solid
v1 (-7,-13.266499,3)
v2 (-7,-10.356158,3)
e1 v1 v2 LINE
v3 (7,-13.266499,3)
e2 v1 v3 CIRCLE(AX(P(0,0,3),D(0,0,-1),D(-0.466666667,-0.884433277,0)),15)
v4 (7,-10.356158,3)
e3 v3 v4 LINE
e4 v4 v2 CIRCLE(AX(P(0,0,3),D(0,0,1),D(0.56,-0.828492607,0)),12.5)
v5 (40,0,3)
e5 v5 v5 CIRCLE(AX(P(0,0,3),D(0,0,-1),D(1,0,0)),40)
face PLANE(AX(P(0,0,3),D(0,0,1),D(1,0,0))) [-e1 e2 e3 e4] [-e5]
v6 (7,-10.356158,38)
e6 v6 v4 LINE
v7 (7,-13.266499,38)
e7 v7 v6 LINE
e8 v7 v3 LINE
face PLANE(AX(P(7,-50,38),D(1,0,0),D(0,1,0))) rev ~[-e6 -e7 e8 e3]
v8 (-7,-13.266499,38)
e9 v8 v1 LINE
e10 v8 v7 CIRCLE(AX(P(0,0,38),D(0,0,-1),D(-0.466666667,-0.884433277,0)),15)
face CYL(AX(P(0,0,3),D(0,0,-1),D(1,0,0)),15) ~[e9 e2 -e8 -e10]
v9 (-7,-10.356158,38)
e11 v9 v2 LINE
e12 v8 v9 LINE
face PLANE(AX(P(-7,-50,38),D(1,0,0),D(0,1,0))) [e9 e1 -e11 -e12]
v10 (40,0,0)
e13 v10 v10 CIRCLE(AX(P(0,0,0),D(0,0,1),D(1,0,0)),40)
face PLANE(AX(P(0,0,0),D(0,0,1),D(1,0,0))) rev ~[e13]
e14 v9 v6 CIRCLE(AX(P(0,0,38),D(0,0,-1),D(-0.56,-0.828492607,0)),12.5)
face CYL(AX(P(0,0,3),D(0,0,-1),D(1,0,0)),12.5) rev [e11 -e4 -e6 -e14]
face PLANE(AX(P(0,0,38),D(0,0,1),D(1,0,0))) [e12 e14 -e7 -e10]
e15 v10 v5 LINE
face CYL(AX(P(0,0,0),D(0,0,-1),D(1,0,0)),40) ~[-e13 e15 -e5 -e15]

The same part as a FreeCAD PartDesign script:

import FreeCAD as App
import Part
import Sketcher
from FreeCAD import Vector


def add_polygon(sketch, points):
    """Adds a closed chain of lines whose ends are joined by coincident constraints."""
    first, n = sketch.GeometryCount, len(points)
    for a, b in zip(points, points[1:] + points[:1]):
        sketch.addGeometry(Part.LineSegment(App.Vector(*a, 0), App.Vector(*b, 0)), False)
    for i in range(n):
        sketch.addConstraint(Sketcher.Constraint("Coincident", first + i, 2, first + (i + 1) % n, 1))

doc = App.newDocument("Part")
body = doc.addObject("PartDesign::Body", "Body")

sketch1 = body.newObject("Sketcher::SketchObject", "Sketch")
sketch1.AttachmentSupport = (doc.getObject("XY_Plane"), [""])
sketch1.MapMode = "FlatFace"
sketch1.addGeometry(Part.Circle(Vector(0, 0, 0), Vector(0, 0, 1), 40), False)
sketch1.addConstraint([
    Sketcher.Constraint("Coincident", 0, 3, -1, 1),
    Sketcher.Constraint("Diameter", 0, 80.0),
])
pad1 = body.newObject("PartDesign::Pad", "Pad")
pad1.Profile = sketch1
pad1.Length = 3

sketch2 = body.newObject("Sketcher::SketchObject", "Sketch001")
sketch2.AttachmentSupport = (doc.getObject("XY_Plane"), [""])
sketch2.MapMode = "FlatFace"
sketch2.AttachmentOffset = App.Placement(Vector(0, 0, 3), App.Rotation())
sketch2.addGeometry([
    Part.Circle(Vector(0, 0, 0), Vector(0, 0, 1), 15),
    Part.Circle(Vector(0, 0, 0), Vector(0, 0, 1), 12),
], False)
sketch2.addConstraint([
    Sketcher.Constraint("Coincident", 0, 3, -1, 1),
    Sketcher.Constraint("Coincident", 1, 3, -1, 1),
    Sketcher.Constraint("Diameter", 0, 30.0),
    Sketcher.Constraint("Diameter", 1, 25.0),
])
pad2 = body.newObject("PartDesign::Pad", "Pad001")
pad2.Profile = sketch2
pad2.Length = 35

sketch3 = body.newObject("Sketcher::SketchObject", "Sketch002")
sketch3.AttachmentSupport = (doc.getObject("XY_Plane"), [""])
sketch3.MapMode = "FlatFace"
sketch3.AttachmentOffset = App.Placement(Vector(0, 0, 38), App.Rotation())
add_polygon(sketch3, [(-7, 0), (-7, -50), (7, -50), (7, 0)])
sketch3.addConstraint([
    Sketcher.Constraint("Vertical", 0),
    Sketcher.Constraint("Horizontal", 1),
    Sketcher.Constraint("Vertical", 2),
    Sketcher.Constraint("Horizontal", 3),
    Sketcher.Constraint("Symmetric", 2, 2, 3, 2, -1, 1),
    Sketcher.Constraint("DistanceX", 1, 1, 1, 2, 14.0),
    Sketcher.Constraint("DistanceY", 0, 2, 0, 1, 50.0),
])
pocket1 = body.newObject("PartDesign::Pocket", "Pocket")
pocket1.Profile = sketch3
pocket1.Length = 35

doc.recompute()
